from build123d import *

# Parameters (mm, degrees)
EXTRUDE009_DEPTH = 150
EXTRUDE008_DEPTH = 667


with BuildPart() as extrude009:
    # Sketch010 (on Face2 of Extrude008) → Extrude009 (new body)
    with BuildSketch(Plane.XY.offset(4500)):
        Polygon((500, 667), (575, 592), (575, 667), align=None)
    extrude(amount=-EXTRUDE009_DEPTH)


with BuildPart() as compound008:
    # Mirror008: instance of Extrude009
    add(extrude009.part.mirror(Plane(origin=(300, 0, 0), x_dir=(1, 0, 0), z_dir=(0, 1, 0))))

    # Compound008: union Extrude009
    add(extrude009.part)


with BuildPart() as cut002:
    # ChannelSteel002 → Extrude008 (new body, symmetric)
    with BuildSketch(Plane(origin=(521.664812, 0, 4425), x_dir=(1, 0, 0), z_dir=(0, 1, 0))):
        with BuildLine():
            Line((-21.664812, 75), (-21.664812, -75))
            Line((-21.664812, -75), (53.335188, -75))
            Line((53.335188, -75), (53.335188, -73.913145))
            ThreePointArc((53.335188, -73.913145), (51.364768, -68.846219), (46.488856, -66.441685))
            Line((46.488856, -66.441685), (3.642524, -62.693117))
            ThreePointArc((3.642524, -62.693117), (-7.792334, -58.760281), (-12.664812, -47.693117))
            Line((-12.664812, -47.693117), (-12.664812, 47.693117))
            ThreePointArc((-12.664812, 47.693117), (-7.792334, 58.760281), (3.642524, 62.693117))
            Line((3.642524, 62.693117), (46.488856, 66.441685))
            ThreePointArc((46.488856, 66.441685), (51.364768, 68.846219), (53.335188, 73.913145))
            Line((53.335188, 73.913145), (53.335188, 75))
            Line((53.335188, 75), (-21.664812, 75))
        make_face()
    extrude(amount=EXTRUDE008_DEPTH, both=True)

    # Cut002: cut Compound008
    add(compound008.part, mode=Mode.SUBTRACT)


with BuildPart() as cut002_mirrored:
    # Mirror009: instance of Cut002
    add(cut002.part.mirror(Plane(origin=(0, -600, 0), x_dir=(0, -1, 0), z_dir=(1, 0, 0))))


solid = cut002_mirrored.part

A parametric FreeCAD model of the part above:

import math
import FreeCAD as App
import Part
import Sketcher

V = App.Vector
Q = App.Units.Quantity


def add_polygon(sketch, points):
    """Adds a closed chain of lines whose ends are joined by coincident constraints."""
    first, n = sketch.GeometryCount, len(points)
    for a, b in zip(points, points[1:] + points[:1]):
        sketch.addGeometry(Part.LineSegment(App.Vector(*a, 0), App.Vector(*b, 0)), False)
    for i in range(n):
        sketch.addConstraint(Sketcher.Constraint("Coincident", first + i, 2, first + (i + 1) % n, 1))

doc = App.newDocument("Part")
body = doc.addObject("PartDesign::Body", "Body")

sketch1 = doc.addObject("Sketcher::SketchObject", "Sketch")
body.addObject(sketch1)
sketch1.AttachmentSupport = (doc.XY_Plane, [""])
sketch1.MapMode = "FlatFace"
sketch1.AttachmentOffset = App.Placement(V(0, 0, 4500), App.Rotation())
add_polygon(sketch1, [(500, 667), (575, 592), (575, 667)])
sketch1.addConstraint(Sketcher.Constraint("Vertical", 1))
sketch1.addConstraint(Sketcher.Constraint("Horizontal", 2))
sketch1.addConstraint(Sketcher.Constraint("Equal", 2, 1))
sketch1.addConstraint(Sketcher.Constraint("DistanceX", 2, 2, 2, 1, Q("75 mm")))
sketch1.addConstraint(Sketcher.Constraint("DistanceX", -1, 1, 0, 2, Q("575 mm")))
sketch1.addConstraint(Sketcher.Constraint("DistanceY", -1, 1, 0, 2, Q("592 mm")))
pad1 = doc.addObject("PartDesign::Pad", "Pad")
body.addObject(pad1)
pad1.Profile = sketch1
pad1.Length = 150
pad1.Reversed = True
body2 = doc.addObject("PartDesign::Body", "Body001")
body2.AllowCompound = True
doc.recompute()

mirroring = doc.addObject("Part::Mirroring", "Mirroring")
mirroring.Source = body
mirroring.Base = V(300, 0, 0)
mirroring.Normal = V(0, 1, 0)
body2.BaseFeature = mirroring
doc.recompute()

boolean = doc.addObject("PartDesign::Boolean", "Boolean")
body2.addObject(boolean)
boolean.Type = "Fuse"
boolean.addObjects([body])
body3 = doc.addObject("PartDesign::Body", "Body002")

sketch2 = doc.addObject("Sketcher::SketchObject", "Sketch001")
body3.addObject(sketch2)
sketch2.AttachmentSupport = (doc.getObject("XZ_Plane002"), [""])
sketch2.MapMode = "FlatFace"
sketch2.addGeometry(Part.LineSegment(V(500, 4350, 0), V(500, 4500, 0)), False)
sketch2.addGeometry(Part.LineSegment(V(500, 4500, 0), V(575, 4500, 0)), False)
sketch2.addGeometry(Part.LineSegment(V(575, 4500, 0), V(575, 4498.913145, 0)), False)
sketch2.addGeometry(Part.ArcOfCircle(Part.Circle(V(567.499999, 4498.913146, 0), V(0, 0, 1), 7.500001), math.radians(-84.999996), math.radians(-0.000006)), False)
sketch2.addGeometry(Part.LineSegment(V(568.153668, 4491.441685, 0), V(525.307336, 4487.693117, 0)), False)
sketch2.addGeometry(Part.ArcOfCircle(Part.Circle(V(524.084659, 4472.65805, 0), V(0, 0, 1), 15.0847), math.radians(85.350842), math.radians(179.866807)), False)
sketch2.addGeometry(Part.LineSegment(V(509, 4472.693117, 0), V(509, 4377.306883, 0)), False)
sketch2.addGeometry(Part.ArcOfCircle(Part.Circle(V(524.084659, 4377.34195, 0), V(0, 0, 1), 15.0847), math.radians(-179.866807), math.radians(-85.350842)), False)
sketch2.addGeometry(Part.LineSegment(V(525.307336, 4362.306883, 0), V(568.153668, 4358.558315, 0)), False)
sketch2.addGeometry(Part.ArcOfCircle(Part.Circle(V(567.499999, 4351.086854, 0), V(0, 0, 1), 7.500001), math.radians(0.000006), math.radians(84.999996)), False)
sketch2.addGeometry(Part.LineSegment(V(575, 4351.086855, 0), V(575, 4350, 0)), False)
sketch2.addGeometry(Part.LineSegment(V(575, 4350, 0), V(500, 4350, 0)), False)
sketch2.addConstraint(Sketcher.Constraint("Coincident", 0, 2, 1, 1))
sketch2.addConstraint(Sketcher.Constraint("Coincident", 1, 2, 2, 1))
sketch2.addConstraint(Sketcher.Constraint("Tangent", 2, 2, 3, 2))
sketch2.addConstraint(Sketcher.Constraint("Tangent", 3, 1, 4, 1))
sketch2.addConstraint(Sketcher.Constraint("Coincident", 4, 2, 5, 1))
sketch2.addConstraint(Sketcher.Constraint("Coincident", 5, 2, 6, 1))
sketch2.addConstraint(Sketcher.Constraint("Coincident", 6, 2, 7, 1))
sketch2.addConstraint(Sketcher.Constraint("Coincident", 7, 2, 8, 1))
sketch2.addConstraint(Sketcher.Constraint("Tangent", 8, 2, 9, 2))
sketch2.addConstraint(Sketcher.Constraint("Tangent", 9, 1, 10, 1))
sketch2.addConstraint(Sketcher.Constraint("Coincident", 10, 2, 11, 1))
sketch2.addConstraint(Sketcher.Constraint("Coincident", 11, 2, 0, 1))
sketch2.addConstraint(Sketcher.Constraint("Vertical", 0))
sketch2.addConstraint(Sketcher.Constraint("Horizontal", 1))
sketch2.addConstraint(Sketcher.Constraint("Vertical", 2))
sketch2.addConstraint(Sketcher.Constraint("Vertical", 6))
sketch2.addConstraint(Sketcher.Constraint("Vertical", 10))
sketch2.addConstraint(Sketcher.Constraint("Horizontal", 11))
sketch2.addConstraint(Sketcher.Constraint("Equal", 5, 7))
sketch2.addConstraint(Sketcher.Constraint("Equal", 3, 9))
sketch2.addConstraint(Sketcher.Constraint("Vertical", 5, 3, 7, 3))
sketch2.addConstraint(Sketcher.Constraint("Vertical", 3, 3, 9, 3))
sketch2.addConstraint(Sketcher.Constraint("Vertical", 4, 2, 7, 2))
sketch2.addConstraint(Sketcher.Constraint("Vertical", 3, 1, 8, 2))
sketch2.addConstraint(Sketcher.Constraint("Equal", 2, 10))
sketch2.addConstraint(Sketcher.Constraint("Radius", 3, Q("7.500001 mm")))
sketch2.addConstraint(Sketcher.Constraint("DistanceX", 1, 1, 1, 2, Q("75 mm")))
sketch2.addConstraint(Sketcher.Constraint("DistanceY", 0, 1, 0, 2, Q("150 mm")))
sketch2.addConstraint(Sketcher.Constraint("Angle", 4, Q("-175 deg")))
sketch2.addConstraint(Sketcher.Constraint("DistanceX", -1, 1, 0, 2, Q("500 mm")))
sketch2.addConstraint(Sketcher.Constraint("DistanceY", -1, 1, 0, 2, Q("4500 mm")))
sketch2.addConstraint(Sketcher.Constraint("DistanceX", -1, 1, 5, 2, Q("509 mm")))
sketch2.addConstraint(Sketcher.Constraint("DistanceY", 5, 2, 4, 2, Q("15 mm")))
sketch2.addConstraint(Sketcher.Constraint("Radius", 5, Q("15.0847 mm")))
sketch2.addConstraint(Sketcher.Constraint("DistanceY", 7, 3, 5, 3, Q("95.316101 mm")))
sketch2.addConstraint(Sketcher.Constraint("DistanceY", 2, 2, 2, 1, Q("1.086855 mm")))
pad2 = doc.addObject("PartDesign::Pad", "Pad001")
body3.addObject(pad2)
pad2.Profile = sketch2
pad2.Length = 1334
pad2.Midplane = True
doc.recompute()

boolean2 = doc.addObject("PartDesign::Boolean", "Boolean001")
body3.addObject(boolean2)
boolean2.Type = "Cut"
boolean2.addObjects([body2])
body4 = doc.addObject("PartDesign::Body", "Body003")
doc.recompute()

mirroring2 = doc.addObject("Part::Mirroring", "Mirroring001")
mirroring2.Source = body3
mirroring2.Base = V(0, -600, 0)
mirroring2.Normal = V(1, 0, 0)
body4.BaseFeature = mirroring2
doc.recompute()
body3.Visibility = False
mirroring.Visibility = False
mirroring2.Visibility = False

doc.recompute()
